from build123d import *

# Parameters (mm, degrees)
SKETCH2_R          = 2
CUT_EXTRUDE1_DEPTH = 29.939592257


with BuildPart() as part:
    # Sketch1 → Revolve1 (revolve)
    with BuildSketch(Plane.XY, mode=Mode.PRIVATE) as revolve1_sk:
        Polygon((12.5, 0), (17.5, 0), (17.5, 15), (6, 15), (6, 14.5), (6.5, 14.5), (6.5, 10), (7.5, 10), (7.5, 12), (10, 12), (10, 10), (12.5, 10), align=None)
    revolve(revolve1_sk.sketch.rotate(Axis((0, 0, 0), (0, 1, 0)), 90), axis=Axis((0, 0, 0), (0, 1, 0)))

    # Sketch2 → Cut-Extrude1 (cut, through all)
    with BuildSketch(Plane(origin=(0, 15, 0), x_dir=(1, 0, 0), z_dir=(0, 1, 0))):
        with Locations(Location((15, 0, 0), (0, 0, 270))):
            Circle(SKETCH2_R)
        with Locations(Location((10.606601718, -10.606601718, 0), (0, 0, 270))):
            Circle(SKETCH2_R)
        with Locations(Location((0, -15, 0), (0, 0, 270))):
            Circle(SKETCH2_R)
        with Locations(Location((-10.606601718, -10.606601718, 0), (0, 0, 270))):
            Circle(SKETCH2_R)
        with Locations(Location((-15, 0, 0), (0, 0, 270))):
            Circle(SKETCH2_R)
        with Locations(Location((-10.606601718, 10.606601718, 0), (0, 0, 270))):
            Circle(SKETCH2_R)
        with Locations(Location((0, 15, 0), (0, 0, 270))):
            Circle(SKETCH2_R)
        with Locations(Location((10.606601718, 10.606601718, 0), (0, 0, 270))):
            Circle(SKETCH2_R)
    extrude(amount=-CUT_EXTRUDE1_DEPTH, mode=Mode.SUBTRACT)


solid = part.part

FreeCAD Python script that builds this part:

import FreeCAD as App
import Part
import Sketcher
Q = App.Units.Quantity


def add_polygon(sketch, points):
    """Adds a closed chain of lines whose ends are joined by coincident constraints."""
    first, n = sketch.GeometryCount, len(points)
    for a, b in zip(points, points[1:] + points[:1]):
        sketch.addGeometry(Part.LineSegment(App.Vector(*a, 0), App.Vector(*b, 0)), False)
    for i in range(n):
        sketch.addConstraint(Sketcher.Constraint("Coincident", first + i, 2, first + (i + 1) % n, 1))

doc = App.newDocument("Part")
body = doc.addObject("PartDesign::Body", "Body")

# Sketch on XY plane
sketch1 = doc.addObject("Sketcher::SketchObject", "Sketch")
body.addObject(sketch1)
sketch1.AttachmentSupport = (doc.XY_Plane, [""])
sketch1.MapMode = "FlatFace"
add_polygon(sketch1, [(12.5, 0), (17.5, 0), (17.5, 15), (6, 15), (6, 14.5), (6.5, 14.5), (6.5, 10), (7.5, 10), (7.5, 12), (10, 12), (10, 10), (12.5, 10)])  # lines 0-11
sketch1.addConstraint([
    Sketcher.Constraint("Horizontal", 0),
    Sketcher.Constraint("Vertical", 1),
    Sketcher.Constraint("Horizontal", 2),
    Sketcher.Constraint("Vertical", 3),
    Sketcher.Constraint("Horizontal", 4),
    Sketcher.Constraint("Vertical", 5),
    Sketcher.Constraint("Horizontal", 6),
    Sketcher.Constraint("Vertical", 7),
    Sketcher.Constraint("Horizontal", 8),
    Sketcher.Constraint("Vertical", 9),
    Sketcher.Constraint("Horizontal", 10),
    Sketcher.Constraint("Vertical", 11),
    Sketcher.Constraint("PointOnObject", 0, 2, -1),
    Sketcher.Constraint("Horizontal", 6, 2, 9, 2),
    Sketcher.Constraint("Equal", 8, 10),
    Sketcher.Constraint("Equal", 4, 3),
    Sketcher.Constraint("DistanceX", 0, 1, 0, 2, Q("5 mm")),
    Sketcher.Constraint("DistanceX", 6, 1, 6, 2, Q("1 mm")),
    Sketcher.Constraint("DistanceY", 1, 1, 1, 2, Q("15 mm")),
    Sketcher.Constraint("DistanceY", 7, 1, 7, 2, Q("2 mm")),
    Sketcher.Constraint("DistanceY", 11, 2, 11, 1, Q("10 mm")),
    Sketcher.Constraint("DistanceX", 2, 2, 2, 1, Q("11.5 mm")),
    Sketcher.Constraint("DistanceX", 4, 1, 4, 2, Q("0.5 mm")),
    Sketcher.Constraint("DistanceX", -1, 1, 2, 2, Q("6 mm")),
])
revolution = doc.addObject("PartDesign::Revolution", "Revolution")
body.addObject(revolution)
revolution.Profile = sketch1
revolution.ReferenceAxis = (sketch1, ["V_Axis"])
revolution.Angle = 360

# Sketch on XZ plane
sketch2 = doc.addObject("Sketcher::SketchObject", "Sketch001")
body.addObject(sketch2)
sketch2.AttachmentSupport = (doc.XZ_Plane, [""])
sketch2.MapMode = "FlatFace"
sketch2.AttachmentOffset = App.Placement(App.Vector(0, 0, -15), App.Rotation())
sketch2.addGeometry([
    Part.Circle(App.Vector(15, 0, 0), App.Vector(0, 0, 1), 2),  # 0
    Part.Circle(App.Vector(10.6, 10.6, 0), App.Vector(0, 0, 1), 2),  # 1
    Part.Circle(App.Vector(0, 15, 0), App.Vector(0, 0, 1), 2),  # 2
    Part.Circle(App.Vector(-10.6, 10.6, 0), App.Vector(0, 0, 1), 2),  # 3
    Part.Circle(App.Vector(-15, 0, 0), App.Vector(0, 0, 1), 2),  # 4
    Part.Circle(App.Vector(-10.6, -10.6, 0), App.Vector(0, 0, 1), 2),  # 5
    Part.Circle(App.Vector(0, -15, 0), App.Vector(0, 0, 1), 2),  # 6
    Part.Circle(App.Vector(10.6, -10.6, 0), App.Vector(0, 0, 1), 2),  # 7
], False)
sketch2.addConstraint([
    Sketcher.Constraint("Equal", 0, 1),
    Sketcher.Constraint("Equal", 1, 2),
    Sketcher.Constraint("Equal", 2, 3),
    Sketcher.Constraint("Equal", 3, 4),
    Sketcher.Constraint("Equal", 4, 5),
    Sketcher.Constraint("Equal", 5, 6),
    Sketcher.Constraint("Equal", 6, 7),
    Sketcher.Constraint("Symmetric", 0, 3, 4, 3, -1, 1),
    Sketcher.Constraint("Symmetric", 1, 3, 5, 3, -1, 1),
    Sketcher.Constraint("Symmetric", 2, 3, 6, 3, -1, 1),
    Sketcher.Constraint("Symmetric", 3, 3, 7, 3, -1, 1),
    Sketcher.Constraint("Symmetric", 1, 3, 3, 3, -2),
    Sketcher.Constraint("PointOnObject", 0, 3, -1),
    Sketcher.Constraint("PointOnObject", 2, 3, -2),
    Sketcher.Constraint("Diameter", 0, Q("4 mm")),
    Sketcher.Constraint("DistanceX", -1, 1, 0, 3, Q("15 mm")),
    Sketcher.Constraint("DistanceY", -1, 1, 2, 3, Q("15 mm")),
    Sketcher.Constraint("DistanceX", -1, 1, 1, 3, Q("10.606602 mm")),
    Sketcher.Constraint("DistanceY", -1, 1, 1, 3, Q("10.606602 mm")),
])
pocket1 = doc.addObject("PartDesign::Pocket", "Pocket")
body.addObject(pocket1)
pocket1.Profile = sketch2
pocket1.Type = "ThroughAll"
pocket1.Reversed = True

doc.recompute()
